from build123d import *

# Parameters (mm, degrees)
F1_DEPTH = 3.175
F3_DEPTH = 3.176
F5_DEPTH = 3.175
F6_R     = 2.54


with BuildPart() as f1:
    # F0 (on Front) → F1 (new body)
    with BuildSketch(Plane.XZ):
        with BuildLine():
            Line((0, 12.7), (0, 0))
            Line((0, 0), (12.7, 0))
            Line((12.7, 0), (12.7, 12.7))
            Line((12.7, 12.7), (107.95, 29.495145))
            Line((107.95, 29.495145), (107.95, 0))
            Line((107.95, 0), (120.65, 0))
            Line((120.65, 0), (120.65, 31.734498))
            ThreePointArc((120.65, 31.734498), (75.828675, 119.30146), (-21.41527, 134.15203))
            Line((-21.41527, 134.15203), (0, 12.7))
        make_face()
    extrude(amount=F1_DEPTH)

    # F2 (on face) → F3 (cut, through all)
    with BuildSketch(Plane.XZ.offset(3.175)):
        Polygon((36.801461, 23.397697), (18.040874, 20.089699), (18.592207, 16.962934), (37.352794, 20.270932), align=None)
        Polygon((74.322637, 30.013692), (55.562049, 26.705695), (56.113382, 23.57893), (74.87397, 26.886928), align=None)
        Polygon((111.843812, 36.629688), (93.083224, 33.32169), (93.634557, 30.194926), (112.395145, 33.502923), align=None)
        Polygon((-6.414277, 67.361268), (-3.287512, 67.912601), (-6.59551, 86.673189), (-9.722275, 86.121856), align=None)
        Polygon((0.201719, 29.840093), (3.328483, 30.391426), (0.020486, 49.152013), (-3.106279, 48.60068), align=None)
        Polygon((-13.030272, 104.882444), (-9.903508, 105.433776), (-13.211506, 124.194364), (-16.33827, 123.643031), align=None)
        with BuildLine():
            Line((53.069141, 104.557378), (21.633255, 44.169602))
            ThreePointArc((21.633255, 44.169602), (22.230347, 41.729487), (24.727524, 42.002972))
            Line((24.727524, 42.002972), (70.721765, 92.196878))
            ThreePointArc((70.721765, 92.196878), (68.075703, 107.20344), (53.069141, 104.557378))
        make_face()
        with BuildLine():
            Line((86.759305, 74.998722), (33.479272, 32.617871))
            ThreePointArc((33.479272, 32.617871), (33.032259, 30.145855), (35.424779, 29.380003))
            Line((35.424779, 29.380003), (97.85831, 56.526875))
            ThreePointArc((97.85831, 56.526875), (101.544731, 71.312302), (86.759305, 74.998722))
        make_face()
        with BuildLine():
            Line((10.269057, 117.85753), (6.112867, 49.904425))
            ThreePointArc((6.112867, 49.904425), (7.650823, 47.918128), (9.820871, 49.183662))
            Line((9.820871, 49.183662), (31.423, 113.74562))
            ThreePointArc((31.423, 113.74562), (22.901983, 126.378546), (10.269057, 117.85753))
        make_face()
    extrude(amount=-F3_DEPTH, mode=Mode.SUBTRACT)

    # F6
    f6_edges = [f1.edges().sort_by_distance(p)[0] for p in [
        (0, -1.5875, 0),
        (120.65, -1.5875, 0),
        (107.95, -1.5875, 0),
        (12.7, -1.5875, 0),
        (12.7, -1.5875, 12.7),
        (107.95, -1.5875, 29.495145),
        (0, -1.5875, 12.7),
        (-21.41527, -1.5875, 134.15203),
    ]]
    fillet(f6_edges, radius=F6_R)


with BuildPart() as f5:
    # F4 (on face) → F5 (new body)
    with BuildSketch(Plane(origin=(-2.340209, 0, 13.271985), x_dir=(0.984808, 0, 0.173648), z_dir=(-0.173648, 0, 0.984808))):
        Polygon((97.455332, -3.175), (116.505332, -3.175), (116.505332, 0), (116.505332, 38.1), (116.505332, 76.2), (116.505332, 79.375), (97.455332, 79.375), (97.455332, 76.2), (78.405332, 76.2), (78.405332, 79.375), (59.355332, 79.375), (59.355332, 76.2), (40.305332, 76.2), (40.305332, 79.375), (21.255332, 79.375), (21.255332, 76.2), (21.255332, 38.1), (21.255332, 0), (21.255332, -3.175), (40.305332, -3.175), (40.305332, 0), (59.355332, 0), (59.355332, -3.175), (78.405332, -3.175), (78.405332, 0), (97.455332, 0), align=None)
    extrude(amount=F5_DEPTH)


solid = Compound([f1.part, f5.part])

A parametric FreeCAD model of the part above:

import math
import FreeCAD as App
import Part
import Sketcher
Q = App.Units.Quantity


def edges_at(feature, points):
    """Names of the edges that pass closest to the given points."""
    edges = feature.Shape.Edges
    near = lambda p: min(range(len(edges)), key=lambda i: edges[i].distToShape(Part.Vertex(*p))[0])
    return sorted({f"Edge{near(p) + 1}" for p in points})

doc = App.newDocument("Part")
body = doc.addObject("PartDesign::Body", "Body")

# Sketch on XZ plane
sketch1 = body.newObject("Sketcher::SketchObject", "Sketch")
sketch1.AttachmentSupport = (doc.getObject("XZ_Plane"), [""])
sketch1.MapMode = "FlatFace"
sketch1.addGeometry(Part.LineSegment(App.Vector(0, 13, 0), App.Vector(0, 0, 0)), False)
sketch1.addGeometry(Part.LineSegment(App.Vector(0, 0, 0), App.Vector(13, 0, 0)), False)
sketch1.addGeometry(Part.LineSegment(App.Vector(13, 0, 0), App.Vector(13, 13, 0)), False)
sketch1.addGeometry(Part.LineSegment(App.Vector(13, 13, 0), App.Vector(108, 29, 0)), False)
sketch1.addGeometry(Part.LineSegment(App.Vector(108, 29, 0), App.Vector(108, 0, 0)), False)
sketch1.addGeometry(Part.LineSegment(App.Vector(108, 0, 0), App.Vector(121, 0, 0)), False)
sketch1.addGeometry(Part.LineSegment(App.Vector(121, 0, 0), App.Vector(121, 32, 0)), False)
sketch1.addGeometry(Part.ArcOfCircle(Part.Circle(App.Vector(13, 32, 0), App.Vector(0, 0, 1), 108), math.radians(0), math.radians(108)), False)
sketch1.addGeometry(Part.LineSegment(App.Vector(-21, 134, 0), App.Vector(0, 13, 0)), False)
sketch1.addConstraint(Sketcher.Constraint("Coincident", 0, 2, 1, 1))
sketch1.addConstraint(Sketcher.Constraint("Coincident", 1, 2, 2, 1))
sketch1.addConstraint(Sketcher.Constraint("Coincident", 2, 2, 3, 1))
sketch1.addConstraint(Sketcher.Constraint("Coincident", 3, 2, 4, 1))
sketch1.addConstraint(Sketcher.Constraint("Coincident", 4, 2, 5, 1))
sketch1.addConstraint(Sketcher.Constraint("Coincident", 5, 2, 6, 1))
sketch1.addConstraint(Sketcher.Constraint("Tangent", 6, 2, 7, 1))
sketch1.addConstraint(Sketcher.Constraint("Coincident", 7, 2, 8, 1))
sketch1.addConstraint(Sketcher.Constraint("Coincident", 8, 2, 0, 1))
sketch1.addConstraint(Sketcher.Constraint("Vertical", 0))
sketch1.addConstraint(Sketcher.Constraint("Horizontal", 1))
sketch1.addConstraint(Sketcher.Constraint("Vertical", 2))
sketch1.addConstraint(Sketcher.Constraint("Vertical", 4))
sketch1.addConstraint(Sketcher.Constraint("Horizontal", 5))
sketch1.addConstraint(Sketcher.Constraint("Vertical", 6))
sketch1.addConstraint(Sketcher.Constraint("Coincident", 0, 2, -1, 1))
sketch1.addConstraint(Sketcher.Constraint("PointOnObject", 4, 2, -1))
sketch1.addConstraint(Sketcher.Constraint("Perpendicular", 3, 8))
sketch1.addConstraint(Sketcher.Constraint("Horizontal", 2, 2, 8, 2))
sketch1.addConstraint(Sketcher.Constraint("Vertical", 7, 3, 1, 2))
sketch1.addConstraint(Sketcher.Constraint("Equal", 1, 5))
sketch1.addConstraint(Sketcher.Constraint("Equal", 5, 0))
sketch1.addConstraint(Sketcher.Constraint("Radius", 7, Q("4.25 in")))
sketch1.addConstraint(Sketcher.Constraint("DistanceX", 1, 1, 1, 2, Q("0.5 in")))
sketch1.addConstraint(Sketcher.Constraint("Angle", 3, Q("10 deg")))
sketch1.addConstraint(Sketcher.Constraint("DistanceY", 6, 1, 6, 2, 31.734498))
pad1 = body.newObject("PartDesign::Pad", "Pad")
pad1.Profile = sketch1
pad1.Length = Q("0.125 in")

# Sketch on XZ plane
sketch2 = body.newObject("Sketcher::SketchObject", "Sketch001")
sketch2.AttachmentSupport = (doc.getObject("XZ_Plane"), [""])
sketch2.MapMode = "FlatFace"
sketch2.AttachmentOffset = App.Placement(App.Vector(0, 0, 0.125 * 25.4), App.Rotation())
sketch2.addGeometry(Part.LineSegment(App.Vector(36.8, 23.4, 0), App.Vector(18, 20.1, 0)), False)
sketch2.addGeometry(Part.LineSegment(App.Vector(18, 20.1, 0), App.Vector(18.6, 17, 0)), False)
sketch2.addGeometry(Part.LineSegment(App.Vector(18.6, 17, 0), App.Vector(37.4, 20.3, 0)), False)
sketch2.addGeometry(Part.LineSegment(App.Vector(37.4, 20.3, 0), App.Vector(36.8, 23.4, 0)), False)
sketch2.addGeometry(Part.LineSegment(App.Vector(74.3, 30, 0), App.Vector(55.6, 26.7, 0)), False)
sketch2.addGeometry(Part.LineSegment(App.Vector(55.6, 26.7, 0), App.Vector(56.1, 23.6, 0)), False)
sketch2.addGeometry(Part.LineSegment(App.Vector(56.1, 23.6, 0), App.Vector(74.9, 26.9, 0)), False)
sketch2.addGeometry(Part.LineSegment(App.Vector(74.9, 26.9, 0), App.Vector(74.3, 30, 0)), False)
sketch2.addGeometry(Part.LineSegment(App.Vector(111.8, 36.6, 0), App.Vector(93.1, 33.3, 0)), False)
sketch2.addGeometry(Part.LineSegment(App.Vector(93.1, 33.3, 0), App.Vector(93.6, 30.2, 0)), False)
sketch2.addGeometry(Part.LineSegment(App.Vector(93.6, 30.2, 0), App.Vector(112.4, 33.5, 0)), False)
sketch2.addGeometry(Part.LineSegment(App.Vector(112.4, 33.5, 0), App.Vector(111.8, 36.6, 0)), False)
sketch2.addGeometry(Part.LineSegment(App.Vector(-6.4, 67.4, 0), App.Vector(-3.3, 67.9, 0)), False)
sketch2.addGeometry(Part.LineSegment(App.Vector(-3.3, 67.9, 0), App.Vector(-6.6, 86.7, 0)), False)
sketch2.addGeometry(Part.LineSegment(App.Vector(-6.6, 86.7, 0), App.Vector(-9.7, 86.1, 0)), False)
sketch2.addGeometry(Part.LineSegment(App.Vector(-9.7, 86.1, 0), App.Vector(-6.4, 67.4, 0)), False)
sketch2.addGeometry(Part.LineSegment(App.Vector(0.2, 29.8, 0), App.Vector(3.3, 30.4, 0)), False)
sketch2.addGeometry(Part.LineSegment(App.Vector(3.3, 30.4, 0), App.Vector(0, 49.2, 0)), False)
sketch2.addGeometry(Part.LineSegment(App.Vector(0, 49.2, 0), App.Vector(-3.1, 48.6, 0)), False)
sketch2.addGeometry(Part.LineSegment(App.Vector(-3.1, 48.6, 0), App.Vector(0.2, 29.8, 0)), False)
sketch2.addGeometry(Part.LineSegment(App.Vector(-13, 104.9, 0), App.Vector(-9.9, 105.4, 0)), False)
sketch2.addGeometry(Part.LineSegment(App.Vector(-9.9, 105.4, 0), App.Vector(-13.2, 124.2, 0)), False)
sketch2.addGeometry(Part.LineSegment(App.Vector(-13.2, 124.2, 0), App.Vector(-16.3, 123.6, 0)), False)
sketch2.addGeometry(Part.LineSegment(App.Vector(-16.3, 123.6, 0), App.Vector(-13, 104.9, 0)), False)
sketch2.addGeometry(Part.LineSegment(App.Vector(53.1, 104.6, 0), App.Vector(21.6, 44.2, 0)), False)
sketch2.addGeometry(Part.ArcOfCircle(Part.Circle(App.Vector(23.3, 43.3, 0), App.Vector(0, 0, 1), 1.9), math.radians(153), math.radians(318)), False)
sketch2.addGeometry(Part.LineSegment(App.Vector(24.7, 42, 0), App.Vector(70.7, 92.2, 0)), False)
sketch2.addGeometry(Part.ArcOfCircle(Part.Circle(App.Vector(61.9, 98.4, 0), App.Vector(0, 0, 1), 10.8), math.radians(-35), math.radians(145)), False)
sketch2.addGeometry(Part.LineSegment(App.Vector(86.8, 75, 0), App.Vector(33.5, 32.6, 0)), False)
sketch2.addGeometry(Part.ArcOfCircle(Part.Circle(App.Vector(34.7, 31.1, 0), App.Vector(0, 0, 1), 1.9), math.radians(129), math.radians(293)), False)
sketch2.addGeometry(Part.LineSegment(App.Vector(35.4, 29.4, 0), App.Vector(97.9, 56.5, 0)), False)
sketch2.addGeometry(Part.ArcOfCircle(Part.Circle(App.Vector(92.3, 65.8, 0), App.Vector(0, 0, 1), 10.8), math.radians(-59), math.radians(121)), False)
sketch2.addGeometry(Part.LineSegment(App.Vector(10.3, 117.9, 0), App.Vector(6.1, 49.9, 0)), False)
sketch2.addGeometry(Part.ArcOfCircle(Part.Circle(App.Vector(8, 49.8, 0), App.Vector(0, 0, 1), 1.9), math.radians(177), math.radians(341)), False)
sketch2.addGeometry(Part.LineSegment(App.Vector(9.8, 49.2, 0), App.Vector(31.4, 113.7, 0)), False)
sketch2.addGeometry(Part.ArcOfCircle(Part.Circle(App.Vector(20.8, 115.8, 0), App.Vector(0, 0, 1), 10.8), math.radians(-11), math.radians(169)), False)
sketch2.addConstraint(Sketcher.Constraint("Coincident", 0, 2, 1, 1))
sketch2.addConstraint(Sketcher.Constraint("Coincident", 1, 2, 2, 1))
sketch2.addConstraint(Sketcher.Constraint("Coincident", 2, 2, 3, 1))
sketch2.addConstraint(Sketcher.Constraint("Coincident", 3, 2, 0, 1))
sketch2.addConstraint(Sketcher.Constraint("Coincident", 4, 2, 5, 1))
sketch2.addConstraint(Sketcher.Constraint("Coincident", 5, 2, 6, 1))
sketch2.addConstraint(Sketcher.Constraint("Coincident", 6, 2, 7, 1))
sketch2.addConstraint(Sketcher.Constraint("Coincident", 7, 2, 4, 1))
sketch2.addConstraint(Sketcher.Constraint("Coincident", 8, 2, 9, 1))
sketch2.addConstraint(Sketcher.Constraint("Coincident", 9, 2, 10, 1))
sketch2.addConstraint(Sketcher.Constraint("Coincident", 10, 2, 11, 1))
sketch2.addConstraint(Sketcher.Constraint("Coincident", 11, 2, 8, 1))
sketch2.addConstraint(Sketcher.Constraint("Coincident", 12, 2, 13, 1))
sketch2.addConstraint(Sketcher.Constraint("Coincident", 13, 2, 14, 1))
sketch2.addConstraint(Sketcher.Constraint("Coincident", 14, 2, 15, 1))
sketch2.addConstraint(Sketcher.Constraint("Coincident", 15, 2, 12, 1))
sketch2.addConstraint(Sketcher.Constraint("Coincident", 16, 2, 17, 1))
sketch2.addConstraint(Sketcher.Constraint("Coincident", 17, 2, 18, 1))
sketch2.addConstraint(Sketcher.Constraint("Coincident", 18, 2, 19, 1))
sketch2.addConstraint(Sketcher.Constraint("Coincident", 19, 2, 16, 1))
sketch2.addConstraint(Sketcher.Constraint("Coincident", 20, 2, 21, 1))
sketch2.addConstraint(Sketcher.Constraint("Coincident", 21, 2, 22, 1))
sketch2.addConstraint(Sketcher.Constraint("Coincident", 22, 2, 23, 1))
sketch2.addConstraint(Sketcher.Constraint("Coincident", 23, 2, 20, 1))
sketch2.addConstraint(Sketcher.Constraint("Tangent", 24, 2, 25, 1))
sketch2.addConstraint(Sketcher.Constraint("Tangent", 25, 2, 26, 1))
sketch2.addConstraint(Sketcher.Constraint("Coincident", 26, 2, 27, 1))
sketch2.addConstraint(Sketcher.Constraint("Coincident", 27, 2, 24, 1))
sketch2.addConstraint(Sketcher.Constraint("Tangent", 28, 2, 29, 1))
sketch2.addConstraint(Sketcher.Constraint("Tangent", 29, 2, 30, 1))
sketch2.addConstraint(Sketcher.Constraint("Coincident", 30, 2, 31, 1))
sketch2.addConstraint(Sketcher.Constraint("Coincident", 31, 2, 28, 1))
sketch2.addConstraint(Sketcher.Constraint("Tangent", 32, 2, 33, 1))
sketch2.addConstraint(Sketcher.Constraint("Tangent", 33, 2, 34, 1))
sketch2.addConstraint(Sketcher.Constraint("Coincident", 34, 2, 35, 1))
sketch2.addConstraint(Sketcher.Constraint("Coincident", 35, 2, 32, 1))
sketch2.addConstraint(Sketcher.Constraint("Equal", 25, 29))
sketch2.addConstraint(Sketcher.Constraint("Equal", 27, 31))
sketch2.addConstraint(Sketcher.Constraint("Equal", 29, 33))
sketch2.addConstraint(Sketcher.Constraint("Equal", 31, 35))
sketch2.addConstraint(Sketcher.Constraint("Perpendicular", 0, 1))
sketch2.addConstraint(Sketcher.Constraint("Perpendicular", 1, 2))
sketch2.addConstraint(Sketcher.Constraint("Perpendicular", 2, 3))
sketch2.addConstraint(Sketcher.Constraint("Perpendicular", 3, 4))
sketch2.addConstraint(Sketcher.Constraint("Perpendicular", 4, 5))
sketch2.addConstraint(Sketcher.Constraint("Perpendicular", 5, 6))
sketch2.addConstraint(Sketcher.Constraint("Perpendicular", 6, 7))
sketch2.addConstraint(Sketcher.Constraint("Perpendicular", 7, 8))
sketch2.addConstraint(Sketcher.Constraint("Perpendicular", 8, 9))
sketch2.addConstraint(Sketcher.Constraint("Perpendicular", 9, 10))
sketch2.addConstraint(Sketcher.Constraint("Perpendicular", 10, 11))
sketch2.addConstraint(Sketcher.Constraint("Perpendicular", 11, 12))
sketch2.addConstraint(Sketcher.Constraint("Perpendicular", 12, 13))
sketch2.addConstraint(Sketcher.Constraint("Perpendicular", 13, 14))
sketch2.addConstraint(Sketcher.Constraint("Perpendicular", 14, 15))
sketch2.addConstraint(Sketcher.Constraint("Perpendicular", 15, 16))
sketch2.addConstraint(Sketcher.Constraint("Perpendicular", 16, 17))
sketch2.addConstraint(Sketcher.Constraint("Perpendicular", 17, 18))
sketch2.addConstraint(Sketcher.Constraint("Perpendicular", 18, 19))
sketch2.addConstraint(Sketcher.Constraint("Perpendicular", 19, 20))
sketch2.addConstraint(Sketcher.Constraint("Perpendicular", 20, 21))
sketch2.addConstraint(Sketcher.Constraint("Perpendicular", 21, 22))
sketch2.addConstraint(Sketcher.Constraint("Perpendicular", 22, 23))
sketch2.addConstraint(Sketcher.Constraint("Equal", 2, 4))
sketch2.addConstraint(Sketcher.Constraint("Equal", 3, 5))
sketch2.addConstraint(Sketcher.Constraint("Equal", 6, 8))
sketch2.addConstraint(Sketcher.Constraint("Equal", 7, 9))
sketch2.addConstraint(Sketcher.Constraint("Equal", 11, 12))
sketch2.addConstraint(Sketcher.Constraint("Equal", 10, 13))
sketch2.addConstraint(Sketcher.Constraint("Equal", 14, 16))
sketch2.addConstraint(Sketcher.Constraint("Equal", 15, 17))
sketch2.addConstraint(Sketcher.Constraint("Equal", 18, 20))
sketch2.addConstraint(Sketcher.Constraint("Equal", 19, 21))
sketch2.addConstraint(Sketcher.Constraint("Equal", 24, 26))
sketch2.addConstraint(Sketcher.Constraint("Equal", 26, 28))
sketch2.addConstraint(Sketcher.Constraint("Equal", 28, 30))
sketch2.addConstraint(Sketcher.Constraint("Equal", 30, 32))
sketch2.addConstraint(Sketcher.Constraint("Equal", 32, 34))
sketch2.addConstraint(Sketcher.Constraint("Angle", 0, Q("-169.999999 deg")))
sketch2.addConstraint(Sketcher.Constraint("Radius", 25, Q("0.075 in")))
sketch2.addConstraint(Sketcher.Constraint("Angle", 24, Q("-117.5 deg")))
sketch2.addConstraint(Sketcher.Constraint("Angle", 26, Q("47.5 deg")))
sketch2.addConstraint(Sketcher.Constraint("Angle", 28, Q("-141.500001 deg")))
sketch2.addConstraint(Sketcher.Constraint("Angle", 32, Q("-93.5 deg")))
sketch2.addConstraint(Sketcher.Constraint("Distance", 0, Q("0.75 in")))
sketch2.addConstraint(Sketcher.Constraint("Distance", 1, Q("0.125 in")))
sketch2.addConstraint(Sketcher.Constraint("DistanceX", -1, 1, 9, 2, Q("3.6863999 in")))
sketch2.addConstraint(Sketcher.Constraint("Radius", 27, 10.774937))
sketch2.addConstraint(Sketcher.Constraint("DistanceX", 25, 3, 27, 3, Q("1.5186001 in")))
sketch2.addConstraint(Sketcher.Constraint("DistanceX", 2, 2, 4, 2, Q("0.7168998 in")))
sketch2.addConstraint(Sketcher.Constraint("DistanceY", 17, 2, 15, 2, Q("0.7168998 in")))
sketch2.addConstraint(Sketcher.Constraint("DistanceY", 13, 2, 23, 2, Q("0.7168998 in")))
sketch2.addConstraint(Sketcher.Constraint("DistanceY", 2, 2, 28, 2, Q("0.4861 in")))
sketch2.addConstraint(Sketcher.Constraint("DistanceX", 29, 2, 3, 2, Q("0.0542001 in")))
sketch2.addConstraint(Sketcher.Constraint("DistanceY", -1, 1, 31, 3, 65.762799))
sketch2.addConstraint(Sketcher.Constraint("DistanceY", -1, 1, 0, 2, 20.089699))
sketch2.addConstraint(Sketcher.Constraint("DistanceY", -1, 1, 12, 2, 67.912601))
sketch2.addConstraint(Sketcher.Constraint("DistanceY", -1, 1, 24, 2, 44.169602))
sketch2.addConstraint(Sketcher.Constraint("DistanceX", -1, 1, 34, 2, 31.423))
sketch2.addConstraint(Sketcher.Constraint("DistanceY", 33, 3, 27, 3, 48.589))
sketch2.addConstraint(Sketcher.Constraint("DistanceY", 2, 2, 5, 2, 3.307998))
sketch2.addConstraint(Sketcher.Constraint("DistanceX", 12, 2, 17, 2, 3.307998))
sketch2.addConstraint(Sketcher.Constraint("DistanceX", 20, 2, 13, 2, 3.307998))
sketch2.addConstraint(Sketcher.Constraint("DistanceY", 20, 2, 35, 3, 10.367798))
sketch2.addConstraint(Sketcher.Constraint("DistanceX", 22, 2, 35, 3, 37.184298))
sketch2.addConstraint(Sketcher.Constraint("DistanceX", 30, 2, 11, 2, 13.985502))
sketch2.addConstraint(Sketcher.Constraint("DistanceX", -1, 1, 25, 3, 23.323011))
sketch2.addConstraint(Sketcher.Constraint("DistanceY", -1, 1, 8, 2, 33.32169))
pocket1 = body.newObject("PartDesign::Pocket", "Pocket")
pocket1.Profile = sketch2
pocket1.Type = "ThroughAll"
doc.recompute()

fillet = body.newObject("PartDesign::Fillet", "Fillet")
fillet.Base = (pocket1, edges_at(pocket1, [
    (0, -1.587, 0),
    (120.65, -1.587, 0),
    (107.95, -1.587, 0),
    (12.7, -1.587, 0),
    (12.7, -1.587, 12.7),
    (107.95, -1.587, 29.495),
    (0, -1.587, 12.7),
    (-21.415, -1.587, 134.152),
]))
fillet.Radius = Q("0.1 in")
body2 = doc.addObject("PartDesign::Body", "Body001")

# Sketch on an angled plane
sketch3 = body2.newObject("Sketcher::SketchObject", "Sketch002")
sketch3.Placement = App.Placement(App.Vector(-2.340209, 0, 13.271985), App.Rotation(App.Vector(0.984807791, 0, 0.173647963), App.Vector(0, 1, 0), App.Vector(-0.173647963, 0, 0.984807791), "ZXY"))
sketch3.addGeometry(Part.LineSegment(App.Vector(97.5, -3.2, 0), App.Vector(116.5, -3.2, 0)), False)
sketch3.addGeometry(Part.LineSegment(App.Vector(116.5, -3.2, 0), App.Vector(116.5, 79.4, 0)), False)
sketch3.addGeometry(Part.LineSegment(App.Vector(116.5, 79.4, 0), App.Vector(97.5, 79.4, 0)), False)
sketch3.addGeometry(Part.LineSegment(App.Vector(97.5, 79.4, 0), App.Vector(97.5, 76.2, 0)), False)
sketch3.addGeometry(Part.LineSegment(App.Vector(97.5, 76.2, 0), App.Vector(78.4, 76.2, 0)), False)
sketch3.addGeometry(Part.LineSegment(App.Vector(78.4, 76.2, 0), App.Vector(78.4, 79.4, 0)), False)
sketch3.addGeometry(Part.LineSegment(App.Vector(78.4, 79.4, 0), App.Vector(59.4, 79.4, 0)), False)
sketch3.addGeometry(Part.LineSegment(App.Vector(59.4, 79.4, 0), App.Vector(59.4, 76.2, 0)), False)
sketch3.addGeometry(Part.LineSegment(App.Vector(59.4, 76.2, 0), App.Vector(40.3, 76.2, 0)), False)
sketch3.addGeometry(Part.LineSegment(App.Vector(40.3, 76.2, 0), App.Vector(40.3, 79.4, 0)), False)
sketch3.addGeometry(Part.LineSegment(App.Vector(40.3, 79.4, 0), App.Vector(21.3, 79.4, 0)), False)
sketch3.addGeometry(Part.LineSegment(App.Vector(21.3, 79.4, 0), App.Vector(21.3, -3.2, 0)), False)
sketch3.addGeometry(Part.LineSegment(App.Vector(21.3, -3.2, 0), App.Vector(40.3, -3.2, 0)), False)
sketch3.addGeometry(Part.LineSegment(App.Vector(40.3, -3.2, 0), App.Vector(40.3, 0, 0)), False)
sketch3.addGeometry(Part.LineSegment(App.Vector(40.3, 0, 0), App.Vector(59.4, 0, 0)), False)
sketch3.addGeometry(Part.LineSegment(App.Vector(59.4, 0, 0), App.Vector(59.4, -3.2, 0)), False)
sketch3.addGeometry(Part.LineSegment(App.Vector(59.4, -3.2, 0), App.Vector(78.4, -3.2, 0)), False)
sketch3.addGeometry(Part.LineSegment(App.Vector(78.4, -3.2, 0), App.Vector(78.4, 0, 0)), False)
sketch3.addGeometry(Part.LineSegment(App.Vector(78.4, 0, 0), App.Vector(97.5, 0, 0)), False)
sketch3.addGeometry(Part.LineSegment(App.Vector(97.5, 0, 0), App.Vector(97.5, -3.2, 0)), False)
sketch3.addConstraint(Sketcher.Constraint("Coincident", 0, 2, 1, 1))
sketch3.addConstraint(Sketcher.Constraint("Coincident", 1, 2, 2, 1))
sketch3.addConstraint(Sketcher.Constraint("Coincident", 2, 2, 3, 1))
sketch3.addConstraint(Sketcher.Constraint("Coincident", 3, 2, 4, 1))
sketch3.addConstraint(Sketcher.Constraint("Coincident", 4, 2, 5, 1))
sketch3.addConstraint(Sketcher.Constraint("Coincident", 5, 2, 6, 1))
sketch3.addConstraint(Sketcher.Constraint("Coincident", 6, 2, 7, 1))
sketch3.addConstraint(Sketcher.Constraint("Coincident", 7, 2, 8, 1))
sketch3.addConstraint(Sketcher.Constraint("Coincident", 8, 2, 9, 1))
sketch3.addConstraint(Sketcher.Constraint("Coincident", 9, 2, 10, 1))
sketch3.addConstraint(Sketcher.Constraint("Coincident", 10, 2, 11, 1))
sketch3.addConstraint(Sketcher.Constraint("Coincident", 11, 2, 12, 1))
sketch3.addConstraint(Sketcher.Constraint("Coincident", 12, 2, 13, 1))
sketch3.addConstraint(Sketcher.Constraint("Coincident", 13, 2, 14, 1))
sketch3.addConstraint(Sketcher.Constraint("Coincident", 14, 2, 15, 1))
sketch3.addConstraint(Sketcher.Constraint("Coincident", 15, 2, 16, 1))
sketch3.addConstraint(Sketcher.Constraint("Coincident", 16, 2, 17, 1))
sketch3.addConstraint(Sketcher.Constraint("Coincident", 17, 2, 18, 1))
sketch3.addConstraint(Sketcher.Constraint("Coincident", 18, 2, 19, 1))
sketch3.addConstraint(Sketcher.Constraint("Coincident", 19, 2, 0, 1))
sketch3.addConstraint(Sketcher.Constraint("Horizontal", 0))
sketch3.addConstraint(Sketcher.Constraint("Vertical", 1))
sketch3.addConstraint(Sketcher.Constraint("Horizontal", 2))
sketch3.addConstraint(Sketcher.Constraint("Vertical", 3))
sketch3.addConstraint(Sketcher.Constraint("Horizontal", 4))
sketch3.addConstraint(Sketcher.Constraint("Vertical", 5))
sketch3.addConstraint(Sketcher.Constraint("Horizontal", 6))
sketch3.addConstraint(Sketcher.Constraint("Vertical", 7))
sketch3.addConstraint(Sketcher.Constraint("Horizontal", 8))
sketch3.addConstraint(Sketcher.Constraint("Vertical", 9))
sketch3.addConstraint(Sketcher.Constraint("Horizontal", 10))
sketch3.addConstraint(Sketcher.Constraint("Vertical", 11))
sketch3.addConstraint(Sketcher.Constraint("Horizontal", 12))
sketch3.addConstraint(Sketcher.Constraint("Vertical", 13))
sketch3.addConstraint(Sketcher.Constraint("Horizontal", 14))
sketch3.addConstraint(Sketcher.Constraint("Vertical", 15))
sketch3.addConstraint(Sketcher.Constraint("Horizontal", 16))
sketch3.addConstraint(Sketcher.Constraint("Vertical", 17))
sketch3.addConstraint(Sketcher.Constraint("Horizontal", 18))
sketch3.addConstraint(Sketcher.Constraint("Vertical", 19))
sketch3.addConstraint(Sketcher.Constraint("PointOnObject", 13, 2, -1))
sketch3.addConstraint(Sketcher.Constraint("PointOnObject", 17, 2, -1))
sketch3.addConstraint(Sketcher.Constraint("Horizontal", 2, 2, 5, 2))
sketch3.addConstraint(Sketcher.Constraint("Horizontal", 4, 2, 7, 2))
sketch3.addConstraint(Sketcher.Constraint("Horizontal", 6, 2, 9, 2))
sketch3.addConstraint(Sketcher.Constraint("Horizontal", 0, 2, 11, 2))
sketch3.addConstraint(Sketcher.Constraint("Horizontal", 12, 2, 15, 2))
sketch3.addConstraint(Sketcher.Constraint("Vertical", 9, 2, 12, 2))
sketch3.addConstraint(Sketcher.Constraint("Vertical", 7, 2, 14, 2))
sketch3.addConstraint(Sketcher.Constraint("Vertical", 5, 2, 16, 2))
sketch3.addConstraint(Sketcher.Constraint("Vertical", 3, 2, 18, 2))
sketch3.addConstraint(Sketcher.Constraint("Equal", 2, 4))
sketch3.addConstraint(Sketcher.Constraint("Equal", 4, 6))
sketch3.addConstraint(Sketcher.Constraint("Equal", 6, 8))
sketch3.addConstraint(Sketcher.Constraint("Equal", 8, 10))
sketch3.addConstraint(Sketcher.Constraint("Equal", 9, 13))
sketch3.addConstraint(Sketcher.Constraint("DistanceY", -1, 1, 3, 2, Q("3 in")))
sketch3.addConstraint(Sketcher.Constraint("DistanceX", 12, 2, 0, 2, Q("3 in")))
sketch3.addConstraint(Sketcher.Constraint("DistanceY", 1, 1, 1, 2, Q("3.25 in")))
sketch3.addConstraint(Sketcher.Constraint("DistanceX", -1, 1, 0, 2, 116.505332))
pad2 = body2.newObject("PartDesign::Pad", "Pad001")
pad2.Profile = sketch3
pad2.Length = Q("0.125 in")

doc.recompute()
